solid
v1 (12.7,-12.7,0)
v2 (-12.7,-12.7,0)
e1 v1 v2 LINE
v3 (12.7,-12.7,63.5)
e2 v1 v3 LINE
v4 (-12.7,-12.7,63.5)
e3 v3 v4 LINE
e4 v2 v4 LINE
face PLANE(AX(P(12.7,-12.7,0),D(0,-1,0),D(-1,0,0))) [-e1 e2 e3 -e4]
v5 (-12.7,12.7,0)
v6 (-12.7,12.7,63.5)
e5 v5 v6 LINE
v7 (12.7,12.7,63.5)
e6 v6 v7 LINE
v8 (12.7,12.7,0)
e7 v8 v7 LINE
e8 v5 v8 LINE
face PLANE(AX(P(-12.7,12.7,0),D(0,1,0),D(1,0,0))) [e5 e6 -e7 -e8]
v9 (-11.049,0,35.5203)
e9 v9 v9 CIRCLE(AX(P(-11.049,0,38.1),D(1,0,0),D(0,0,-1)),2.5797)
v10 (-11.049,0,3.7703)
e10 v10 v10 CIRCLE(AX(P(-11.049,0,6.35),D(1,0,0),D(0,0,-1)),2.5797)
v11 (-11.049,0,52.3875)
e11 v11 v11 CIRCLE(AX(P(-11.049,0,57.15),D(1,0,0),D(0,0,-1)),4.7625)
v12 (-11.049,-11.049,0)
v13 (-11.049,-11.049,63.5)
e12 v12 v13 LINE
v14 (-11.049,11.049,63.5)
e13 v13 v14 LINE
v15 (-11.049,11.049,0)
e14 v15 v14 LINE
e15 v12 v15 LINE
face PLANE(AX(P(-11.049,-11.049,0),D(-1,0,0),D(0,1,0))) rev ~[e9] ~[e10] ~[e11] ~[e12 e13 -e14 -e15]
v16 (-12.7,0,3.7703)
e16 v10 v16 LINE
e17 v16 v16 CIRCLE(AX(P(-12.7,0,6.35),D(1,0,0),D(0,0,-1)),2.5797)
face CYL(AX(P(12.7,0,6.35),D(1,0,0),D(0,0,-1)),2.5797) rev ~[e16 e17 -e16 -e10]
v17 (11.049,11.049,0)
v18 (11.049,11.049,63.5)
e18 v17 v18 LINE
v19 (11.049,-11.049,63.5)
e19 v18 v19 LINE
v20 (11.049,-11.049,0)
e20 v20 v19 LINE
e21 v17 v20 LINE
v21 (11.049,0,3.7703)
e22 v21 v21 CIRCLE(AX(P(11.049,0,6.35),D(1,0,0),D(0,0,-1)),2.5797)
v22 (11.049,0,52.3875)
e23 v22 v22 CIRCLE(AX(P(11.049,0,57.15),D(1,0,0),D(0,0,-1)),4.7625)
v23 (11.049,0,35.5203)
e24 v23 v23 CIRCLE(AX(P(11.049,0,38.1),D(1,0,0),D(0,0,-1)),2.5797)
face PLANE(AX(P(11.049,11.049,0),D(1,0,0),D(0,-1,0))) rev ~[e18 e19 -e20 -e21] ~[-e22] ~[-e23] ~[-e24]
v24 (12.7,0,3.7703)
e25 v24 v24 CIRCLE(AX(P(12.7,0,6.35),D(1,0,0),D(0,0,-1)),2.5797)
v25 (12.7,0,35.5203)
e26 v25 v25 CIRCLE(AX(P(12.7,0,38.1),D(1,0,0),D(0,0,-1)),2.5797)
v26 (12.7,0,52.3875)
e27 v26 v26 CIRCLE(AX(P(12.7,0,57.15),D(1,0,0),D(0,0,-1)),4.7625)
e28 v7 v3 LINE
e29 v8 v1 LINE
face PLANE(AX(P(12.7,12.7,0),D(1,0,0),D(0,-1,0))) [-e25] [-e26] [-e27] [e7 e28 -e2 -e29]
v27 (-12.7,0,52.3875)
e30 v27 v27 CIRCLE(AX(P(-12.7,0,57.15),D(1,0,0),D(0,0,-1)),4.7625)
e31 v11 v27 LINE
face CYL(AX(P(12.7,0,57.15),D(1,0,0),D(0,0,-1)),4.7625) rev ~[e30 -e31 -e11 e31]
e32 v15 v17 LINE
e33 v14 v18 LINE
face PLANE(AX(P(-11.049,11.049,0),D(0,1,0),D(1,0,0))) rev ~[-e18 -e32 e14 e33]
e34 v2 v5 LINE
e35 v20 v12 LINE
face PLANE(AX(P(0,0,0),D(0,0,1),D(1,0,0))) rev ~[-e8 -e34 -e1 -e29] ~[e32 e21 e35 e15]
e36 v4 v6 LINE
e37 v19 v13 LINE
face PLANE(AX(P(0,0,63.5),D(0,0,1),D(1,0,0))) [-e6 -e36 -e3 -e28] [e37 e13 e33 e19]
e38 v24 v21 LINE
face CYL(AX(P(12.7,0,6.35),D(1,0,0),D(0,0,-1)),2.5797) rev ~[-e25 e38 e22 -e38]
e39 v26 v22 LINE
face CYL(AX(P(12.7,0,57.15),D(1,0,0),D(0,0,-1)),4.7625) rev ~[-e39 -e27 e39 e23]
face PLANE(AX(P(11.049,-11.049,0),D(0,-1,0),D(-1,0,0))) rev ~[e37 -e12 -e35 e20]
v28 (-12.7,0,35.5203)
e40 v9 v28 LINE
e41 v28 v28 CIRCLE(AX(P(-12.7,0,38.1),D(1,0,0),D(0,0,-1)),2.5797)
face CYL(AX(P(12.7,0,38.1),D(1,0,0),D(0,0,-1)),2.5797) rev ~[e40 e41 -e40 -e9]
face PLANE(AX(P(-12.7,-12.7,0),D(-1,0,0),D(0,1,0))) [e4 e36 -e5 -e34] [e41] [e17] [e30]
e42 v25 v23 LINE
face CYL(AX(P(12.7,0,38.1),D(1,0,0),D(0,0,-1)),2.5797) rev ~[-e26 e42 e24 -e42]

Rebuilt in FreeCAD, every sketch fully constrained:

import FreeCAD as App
import Part
import Sketcher
Q = App.Units.Quantity

doc = App.newDocument("Part")
body = doc.addObject("PartDesign::Body", "Body")

# Sketch on XY plane
sketch1 = body.newObject("Sketcher::SketchObject", "Sketch")
sketch1.AttachmentSupport = (doc.getObject("XY_Plane"), [""])
sketch1.MapMode = "FlatFace"
sketch1.addGeometry(Part.LineSegment(App.Vector(-13, -13, 0), App.Vector(13, -13, 0)), False)
sketch1.addGeometry(Part.LineSegment(App.Vector(13, -13, 0), App.Vector(13, 13, 0)), False)
sketch1.addGeometry(Part.LineSegment(App.Vector(13, 13, 0), App.Vector(-13, 13, 0)), False)
sketch1.addGeometry(Part.LineSegment(App.Vector(-13, 13, 0), App.Vector(-13, -13, 0)), False)
sketch1.addGeometry(Part.LineSegment(App.Vector(11, 11, 0), App.Vector(11, -11, 0)), False)
sketch1.addGeometry(Part.LineSegment(App.Vector(11, -11, 0), App.Vector(-11, -11, 0)), False)
sketch1.addGeometry(Part.LineSegment(App.Vector(-11, -11, 0), App.Vector(-11, 11, 0)), False)
sketch1.addGeometry(Part.LineSegment(App.Vector(-11, 11, 0), App.Vector(11, 11, 0)), False)
sketch1.addConstraint(Sketcher.Constraint("Coincident", 0, 2, 1, 1))
sketch1.addConstraint(Sketcher.Constraint("Coincident", 1, 2, 2, 1))
sketch1.addConstraint(Sketcher.Constraint("Coincident", 2, 2, 3, 1))
sketch1.addConstraint(Sketcher.Constraint("Coincident", 3, 2, 0, 1))
sketch1.addConstraint(Sketcher.Constraint("Coincident", 4, 2, 5, 1))
sketch1.addConstraint(Sketcher.Constraint("Coincident", 5, 2, 6, 1))
sketch1.addConstraint(Sketcher.Constraint("Coincident", 6, 2, 7, 1))
sketch1.addConstraint(Sketcher.Constraint("Coincident", 7, 2, 4, 1))
sketch1.addConstraint(Sketcher.Constraint("Horizontal", 0))
sketch1.addConstraint(Sketcher.Constraint("Vertical", 1))
sketch1.addConstraint(Sketcher.Constraint("Horizontal", 2))
sketch1.addConstraint(Sketcher.Constraint("Vertical", 3))
sketch1.addConstraint(Sketcher.Constraint("Vertical", 4))
sketch1.addConstraint(Sketcher.Constraint("Horizontal", 5))
sketch1.addConstraint(Sketcher.Constraint("Vertical", 6))
sketch1.addConstraint(Sketcher.Constraint("Horizontal", 7))
sketch1.addConstraint(Sketcher.Constraint("Symmetric", 0, 2, 2, 2, -1, 1))
sketch1.addConstraint(Sketcher.Constraint("Symmetric", 4, 2, 6, 2, -1, 1))
sketch1.addConstraint(Sketcher.Constraint("Equal", 2, 1))
sketch1.addConstraint(Sketcher.Constraint("Equal", 7, 4))
sketch1.addConstraint(Sketcher.Constraint("DistanceX", 0, 1, 0, 2, Q("1 in")))
sketch1.addConstraint(Sketcher.Constraint("DistanceX", 4, 2, 0, 2, Q("0.065 in")))
pad1 = body.newObject("PartDesign::Pad", "Pad")
pad1.Profile = sketch1
pad1.Length = Q("2.5 in")

# Sketch on YZ plane
sketch2 = body.newObject("Sketcher::SketchObject", "Sketch001")
sketch2.AttachmentSupport = (doc.getObject("YZ_Plane"), [""])
sketch2.MapMode = "FlatFace"
sketch2.AttachmentOffset = App.Placement(App.Vector(0, 0, 0.5 * 25.4), App.Rotation())
sketch2.addGeometry(Part.Circle(App.Vector(0, 57.1, 0), App.Vector(0, 0, 1), 4.8), False)
sketch2.addGeometry(Part.Circle(App.Vector(0, 6.3, 0), App.Vector(0, 0, 1), 2.6), False)
sketch2.addGeometry(Part.Circle(App.Vector(0, 38.1, 0), App.Vector(0, 0, 1), 2.6), False)
sketch2.addConstraint(Sketcher.Constraint("Equal", 1, 2))
sketch2.addConstraint(Sketcher.Constraint("PointOnObject", 0, 3, -2))
sketch2.addConstraint(Sketcher.Constraint("PointOnObject", 1, 3, -2))
sketch2.addConstraint(Sketcher.Constraint("PointOnObject", 2, 3, -2))
sketch2.addConstraint(Sketcher.Constraint("Diameter", 0, Q("0.375 in")))
sketch2.addConstraint(Sketcher.Constraint("Diameter", 1, Q("0.203126 in")))
sketch2.addConstraint(Sketcher.Constraint("DistanceY", -1, 1, 1, 3, Q("0.25 in")))
sketch2.addConstraint(Sketcher.Constraint("DistanceY", 2, 3, 0, 3, Q("0.75 in")))
sketch2.addConstraint(Sketcher.Constraint("DistanceY", 1, 3, 0, 3, Q("2 in")))
pocket1 = body.newObject("PartDesign::Pocket", "Pocket")
pocket1.Profile = sketch2
pocket1.Length = Q("2 in")

doc.recompute()
